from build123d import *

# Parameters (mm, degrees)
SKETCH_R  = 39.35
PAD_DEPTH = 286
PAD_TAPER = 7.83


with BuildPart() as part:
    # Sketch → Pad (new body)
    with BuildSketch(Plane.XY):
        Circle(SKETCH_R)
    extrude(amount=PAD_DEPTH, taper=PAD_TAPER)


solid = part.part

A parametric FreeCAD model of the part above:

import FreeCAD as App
import Part
import Sketcher
from FreeCAD import Vector
Q = App.Units.Quantity

doc = App.newDocument("Part")
body = doc.addObject("PartDesign::Body", "Body")

# Sketch on XY plane
sketch1 = body.newObject("Sketcher::SketchObject", "Sketch")
sketch1.AttachmentSupport = (doc.getObject("XY_Plane"), [""])
sketch1.MapMode = "FlatFace"
sketch1.addGeometry(Part.Circle(Vector(0, 0, 0), Vector(0, 0, 1), 39), False)
sketch1.addConstraint(Sketcher.Constraint("Coincident", 0, 3, -1, 1))
sketch1.addConstraint(Sketcher.Constraint("Diameter", 0, Q("78.7 mm")))
pad1 = body.newObject("PartDesign::Pad", "Pad")
pad1.Profile = sketch1
pad1.Length = 286
pad1.TaperAngle = -7.83

doc.recompute()
